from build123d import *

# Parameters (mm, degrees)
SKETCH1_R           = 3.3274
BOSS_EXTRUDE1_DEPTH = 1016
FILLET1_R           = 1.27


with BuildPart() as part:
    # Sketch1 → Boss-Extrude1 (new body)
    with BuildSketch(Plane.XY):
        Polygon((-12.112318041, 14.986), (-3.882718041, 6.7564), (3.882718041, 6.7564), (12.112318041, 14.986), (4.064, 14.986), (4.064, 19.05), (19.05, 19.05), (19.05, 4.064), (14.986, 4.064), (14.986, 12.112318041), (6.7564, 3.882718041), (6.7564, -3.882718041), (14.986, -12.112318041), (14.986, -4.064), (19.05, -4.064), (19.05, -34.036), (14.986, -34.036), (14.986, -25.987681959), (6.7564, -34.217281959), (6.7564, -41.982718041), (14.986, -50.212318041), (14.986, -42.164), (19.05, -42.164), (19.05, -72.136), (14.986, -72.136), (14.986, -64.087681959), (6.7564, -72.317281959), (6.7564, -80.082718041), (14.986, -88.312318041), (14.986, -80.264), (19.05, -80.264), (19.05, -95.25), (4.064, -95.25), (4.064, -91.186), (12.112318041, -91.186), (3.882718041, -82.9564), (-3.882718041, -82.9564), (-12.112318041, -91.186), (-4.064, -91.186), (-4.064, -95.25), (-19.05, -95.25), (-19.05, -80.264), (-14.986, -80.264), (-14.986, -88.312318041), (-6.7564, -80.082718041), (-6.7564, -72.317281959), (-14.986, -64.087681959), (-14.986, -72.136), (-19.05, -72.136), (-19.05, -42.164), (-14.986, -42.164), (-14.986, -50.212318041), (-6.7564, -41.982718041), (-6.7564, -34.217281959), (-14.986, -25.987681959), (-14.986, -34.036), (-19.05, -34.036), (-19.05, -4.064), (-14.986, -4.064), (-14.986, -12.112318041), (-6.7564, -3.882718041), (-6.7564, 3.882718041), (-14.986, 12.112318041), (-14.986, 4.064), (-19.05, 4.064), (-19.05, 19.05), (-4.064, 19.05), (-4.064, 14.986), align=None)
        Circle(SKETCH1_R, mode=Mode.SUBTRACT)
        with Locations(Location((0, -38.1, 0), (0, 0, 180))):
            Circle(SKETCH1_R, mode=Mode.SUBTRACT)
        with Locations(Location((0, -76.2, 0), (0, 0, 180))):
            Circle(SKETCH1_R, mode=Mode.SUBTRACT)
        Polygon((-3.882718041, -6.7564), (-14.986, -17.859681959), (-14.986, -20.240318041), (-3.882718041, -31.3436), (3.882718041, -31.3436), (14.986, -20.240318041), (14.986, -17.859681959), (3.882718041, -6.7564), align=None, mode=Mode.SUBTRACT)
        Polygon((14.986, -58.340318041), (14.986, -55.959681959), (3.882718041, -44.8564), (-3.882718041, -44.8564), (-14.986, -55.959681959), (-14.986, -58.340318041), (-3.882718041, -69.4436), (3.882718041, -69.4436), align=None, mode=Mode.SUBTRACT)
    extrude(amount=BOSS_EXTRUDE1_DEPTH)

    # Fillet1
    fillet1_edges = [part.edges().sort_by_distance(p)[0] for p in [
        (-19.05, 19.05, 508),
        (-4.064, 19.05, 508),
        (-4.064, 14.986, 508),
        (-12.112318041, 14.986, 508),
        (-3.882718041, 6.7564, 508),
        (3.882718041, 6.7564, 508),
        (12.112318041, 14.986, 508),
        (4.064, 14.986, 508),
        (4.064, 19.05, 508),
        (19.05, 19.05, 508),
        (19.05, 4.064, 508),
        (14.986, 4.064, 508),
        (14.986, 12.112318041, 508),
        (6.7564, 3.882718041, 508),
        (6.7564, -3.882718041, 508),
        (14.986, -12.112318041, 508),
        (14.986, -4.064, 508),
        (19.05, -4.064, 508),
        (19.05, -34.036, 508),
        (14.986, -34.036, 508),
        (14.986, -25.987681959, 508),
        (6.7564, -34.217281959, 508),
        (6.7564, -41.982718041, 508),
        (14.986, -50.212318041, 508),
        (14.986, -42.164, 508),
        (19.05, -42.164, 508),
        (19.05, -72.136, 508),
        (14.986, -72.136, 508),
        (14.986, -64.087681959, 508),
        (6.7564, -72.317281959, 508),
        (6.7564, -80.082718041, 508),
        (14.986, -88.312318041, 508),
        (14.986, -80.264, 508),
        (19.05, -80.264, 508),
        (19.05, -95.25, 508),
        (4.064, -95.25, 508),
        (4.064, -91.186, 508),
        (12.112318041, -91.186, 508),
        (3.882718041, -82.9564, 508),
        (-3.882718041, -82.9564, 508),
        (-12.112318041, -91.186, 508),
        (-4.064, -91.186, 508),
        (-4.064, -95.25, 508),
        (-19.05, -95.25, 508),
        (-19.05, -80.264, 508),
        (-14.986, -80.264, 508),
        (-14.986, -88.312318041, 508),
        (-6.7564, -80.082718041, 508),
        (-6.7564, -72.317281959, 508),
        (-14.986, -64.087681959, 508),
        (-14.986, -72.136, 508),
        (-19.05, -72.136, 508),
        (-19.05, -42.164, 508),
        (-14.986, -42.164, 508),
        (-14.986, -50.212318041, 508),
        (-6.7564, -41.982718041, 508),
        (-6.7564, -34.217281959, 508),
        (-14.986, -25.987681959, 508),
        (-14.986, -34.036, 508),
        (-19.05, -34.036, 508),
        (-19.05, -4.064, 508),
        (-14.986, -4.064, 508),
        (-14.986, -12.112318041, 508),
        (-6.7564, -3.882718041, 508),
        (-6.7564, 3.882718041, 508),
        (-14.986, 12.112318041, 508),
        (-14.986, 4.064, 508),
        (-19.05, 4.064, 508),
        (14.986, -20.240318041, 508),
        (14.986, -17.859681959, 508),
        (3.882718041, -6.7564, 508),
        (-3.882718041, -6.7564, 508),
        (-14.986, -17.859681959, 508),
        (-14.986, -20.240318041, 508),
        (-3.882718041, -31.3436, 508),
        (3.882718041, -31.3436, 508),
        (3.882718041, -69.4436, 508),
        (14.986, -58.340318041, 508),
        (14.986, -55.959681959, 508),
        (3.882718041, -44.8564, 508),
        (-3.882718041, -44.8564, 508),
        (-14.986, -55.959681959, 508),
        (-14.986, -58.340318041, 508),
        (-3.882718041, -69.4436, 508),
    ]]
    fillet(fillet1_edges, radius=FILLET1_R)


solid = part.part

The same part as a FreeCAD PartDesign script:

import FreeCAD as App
import Part
import Sketcher

V = App.Vector
Q = App.Units.Quantity


def edges_at(feature, points):
    """Names of the edges that pass closest to the given points."""
    edges = feature.Shape.Edges
    near = lambda p: min(range(len(edges)), key=lambda i: edges[i].distToShape(Part.Vertex(*p))[0])
    return sorted({f"Edge{near(p) + 1}" for p in points})


def add_polygon(sketch, points):
    """Adds a closed chain of lines whose ends are joined by coincident constraints."""
    first, n = sketch.GeometryCount, len(points)
    for a, b in zip(points, points[1:] + points[:1]):
        sketch.addGeometry(Part.LineSegment(App.Vector(*a, 0), App.Vector(*b, 0)), False)
    for i in range(n):
        sketch.addConstraint(Sketcher.Constraint("Coincident", first + i, 2, first + (i + 1) % n, 1))

doc = App.newDocument("Part")
params = doc.addObject("Spreadsheet::Sheet", "Params")
for row, (alias, value) in enumerate([
    ("sketch1_diameter", "0.262 in"),
    ("sketch1_width", "0.59 in"),
    ("sketch1_width2", "0.16 in"),
    ("sketch1_height", "1.18 in"),
    ("pad1_length", "40 in"),
    ("fillet_radius", "0.05 in"),
], start=1):
    params.set(f"A{row}", alias)
    params.set(f"B{row}", "=" + value)
    params.setAlias(f"B{row}", alias)

body = doc.addObject("PartDesign::Body", "Body")

# Sketch on XY plane
sketch1 = body.newObject("Sketcher::SketchObject", "Sketch")
sketch1.AttachmentSupport = (doc.getObject("XY_Plane"), [""])
sketch1.MapMode = "FlatFace"
add_polygon(sketch1, [(-3.882718, 6.7564), (-12.112318, 14.986), (-4.064, 14.986), (-4.064, 19.05), (-19.05, 19.05), (-19.05, 4.064), (-14.986, 4.064), (-14.986, 12.112318), (-6.7564, 3.882718), (-6.7564, -3.882718), (-14.986, -12.112318), (-14.986, -4.064), (-19.05, -4.064), (-19.05, -34.036), (-14.986, -34.036), (-14.986, -25.987682), (-6.7564, -34.217282), (-6.7564, -41.982718), (-14.986, -50.212318), (-14.986, -42.164), (-19.05, -42.164), (-19.05, -72.136), (-14.986, -72.136), (-14.986, -64.087682), (-6.7564, -72.317282), (-6.7564, -80.082718), (-14.986, -88.312318), (-14.986, -80.264), (-19.05, -80.264), (-19.05, -95.25), (-4.064, -95.25), (-4.064, -91.186), (-12.112318, -91.186), (-3.882718, -82.9564), (3.882718, -82.9564), (12.112318, -91.186), (4.064, -91.186), (4.064, -95.25), (19.05, -95.25), (19.05, -80.264), (14.986, -80.264), (14.986, -88.312318), (6.7564, -80.082718), (6.7564, -72.317282), (14.986, -64.087682), (14.986, -72.136), (19.05, -72.136), (19.05, -42.164), (14.986, -42.164), (14.986, -50.212318), (6.7564, -41.982718), (6.7564, -34.217282), (14.986, -25.987682), (14.986, -34.036), (19.05, -34.036), (19.05, -4.064), (14.986, -4.064), (14.986, -12.112318), (6.7564, -3.882718), (6.7564, 3.882718), (14.986, 12.112318), (14.986, 4.064), (19.05, 4.064), (19.05, 19.05), (4.064, 19.05), (4.064, 14.986), (12.112318, 14.986), (3.882718, 6.7564)])  # lines 0-67
sketch1.addGeometry(Part.Circle(V(0, -76.2, 0), V(0, 0, 1), 3.3274), False)  # 68
add_polygon(sketch1, [(14.986, -58.340318), (3.882718, -69.4436), (-3.882718, -69.4436), (-14.986, -58.340318), (-14.986, -55.959682), (-3.882718, -44.8564), (3.882718, -44.8564), (14.986, -55.959682)])  # lines 69-76
sketch1.addGeometry(Part.Circle(V(0, -38.1, 0), V(0, 0, 1), 3.3274), False)  # 77
add_polygon(sketch1, [(-3.882718, -6.7564), (3.882718, -6.7564), (14.986, -17.859682), (14.986, -20.240318), (3.882718, -31.3436), (-3.882718, -31.3436), (-14.986, -20.240318), (-14.986, -17.859682)])  # lines 78-85
sketch1.addGeometry(Part.Circle(V(0, 0, 0), V(0, 0, 1), 3.3274), False)  # 86
sketch1.addConstraint([
    Sketcher.Constraint("Horizontal", 1),
    Sketcher.Constraint("Vertical", 2),
    Sketcher.Constraint("Horizontal", 3),
    Sketcher.Constraint("Vertical", 4),
    Sketcher.Constraint("Horizontal", 5),
    Sketcher.Constraint("Vertical", 6),
    Sketcher.Constraint("Vertical", 8),
    Sketcher.Constraint("Vertical", 10),
    Sketcher.Constraint("Horizontal", 11),
    Sketcher.Constraint("Vertical", 12),
    Sketcher.Constraint("Horizontal", 13),
    Sketcher.Constraint("Vertical", 14),
    Sketcher.Constraint("Vertical", 16),
    Sketcher.Constraint("Vertical", 18),
    Sketcher.Constraint("Horizontal", 19),
    Sketcher.Constraint("Vertical", 20),
    Sketcher.Constraint("Horizontal", 21),
    Sketcher.Constraint("Vertical", 22),
    Sketcher.Constraint("Vertical", 24),
    Sketcher.Constraint("Vertical", 26),
    Sketcher.Constraint("Horizontal", 27),
    Sketcher.Constraint("Vertical", 28),
    Sketcher.Constraint("Horizontal", 29),
    Sketcher.Constraint("Vertical", 30),
    Sketcher.Constraint("Horizontal", 31),
    Sketcher.Constraint("Horizontal", 33),
    Sketcher.Constraint("Horizontal", 35),
    Sketcher.Constraint("Vertical", 36),
    Sketcher.Constraint("Horizontal", 37),
    Sketcher.Constraint("Vertical", 38),
    Sketcher.Constraint("Horizontal", 39),
    Sketcher.Constraint("Vertical", 40),
    Sketcher.Constraint("Vertical", 42),
    Sketcher.Constraint("Vertical", 44),
    Sketcher.Constraint("Horizontal", 45),
    Sketcher.Constraint("Vertical", 46),
    Sketcher.Constraint("Horizontal", 47),
    Sketcher.Constraint("Vertical", 48),
    Sketcher.Constraint("Vertical", 50),
    Sketcher.Constraint("Vertical", 52),
    Sketcher.Constraint("Horizontal", 53),
    Sketcher.Constraint("Vertical", 54),
    Sketcher.Constraint("Horizontal", 55),
    Sketcher.Constraint("Vertical", 56),
    Sketcher.Constraint("Vertical", 58),
    Sketcher.Constraint("Vertical", 60),
    Sketcher.Constraint("Horizontal", 61),
    Sketcher.Constraint("Vertical", 62),
    Sketcher.Constraint("Horizontal", 63),
    Sketcher.Constraint("Vertical", 64),
    Sketcher.Constraint("Horizontal", 65),
    Sketcher.Constraint("Horizontal", 67),
    Sketcher.Constraint("Horizontal", 70),
    Sketcher.Constraint("Vertical", 72),
    Sketcher.Constraint("Horizontal", 74),
    Sketcher.Constraint("Vertical", 76),
    Sketcher.Constraint("Horizontal", 78),
    Sketcher.Constraint("Vertical", 80),
    Sketcher.Constraint("Horizontal", 82),
    Sketcher.Constraint("Vertical", 84),
    Sketcher.Constraint("Coincident", 86, 3, -1, 1),
    Sketcher.Constraint("Equal", 68, 77),
    Sketcher.Constraint("Equal", 77, 86),
    Sketcher.Constraint("Symmetric", 4, 2, 54, 2, -1, 1),
    Sketcher.Constraint("Symmetric", 6, 2, 56, 2, -1, 1),
    Sketcher.Constraint("Symmetric", 7, 2, 57, 2, -1, 1),
    Sketcher.Constraint("Symmetric", 9, 2, 59, 2, -1, 1),
    Sketcher.Constraint("Symmetric", 11, 2, 61, 2, -1, 1),
    Sketcher.Constraint("Symmetric", 67, 2, 78, 2, -1, 1),
    Sketcher.Constraint("Symmetric", 31, 2, 34, 2, -2),
    Sketcher.Constraint("Symmetric", 29, 2, 36, 2, -2),
    Sketcher.Constraint("Symmetric", 27, 2, 38, 2, -2),
    Sketcher.Constraint("Symmetric", 25, 2, 40, 2, -2),
    Sketcher.Constraint("Symmetric", 24, 2, 41, 2, -2),
    Sketcher.Constraint("Symmetric", 22, 2, 43, 2, -2),
    Sketcher.Constraint("Symmetric", 20, 2, 45, 2, -2),
    Sketcher.Constraint("Symmetric", 18, 2, 47, 2, -2),
    Sketcher.Constraint("Symmetric", 16, 2, 49, 2, -2),
    Sketcher.Constraint("Symmetric", 14, 2, 51, 2, -2),
    Sketcher.Constraint("Symmetric", 12, 2, 53, 2, -2),
    Sketcher.Constraint("Symmetric", 10, 2, 55, 2, -2),
    Sketcher.Constraint("Symmetric", 2, 2, 63, 2, -2),
    Sketcher.Constraint("Symmetric", 0, 2, 65, 2, -2),
    Sketcher.Constraint("Symmetric", 72, 2, 75, 2, -2),
    Sketcher.Constraint("Symmetric", 80, 2, 83, 2, -2),
    Sketcher.Constraint("PointOnObject", 68, 3, -2),
    Sketcher.Constraint("PointOnObject", 77, 3, -2),
    Sketcher.Constraint("Parallel", 0, 7),
    Sketcher.Constraint("Perpendicular", 7, 9),
    Sketcher.Constraint("Perpendicular", 9, 15),
    Sketcher.Constraint("Perpendicular", 15, 17),
    Sketcher.Constraint("Perpendicular", 17, 23),
    Sketcher.Constraint("Perpendicular", 23, 25),
    Sketcher.Constraint("Parallel", 25, 32),
    Sketcher.Constraint("Perpendicular", 32, 34),
    Sketcher.Constraint("Parallel", 34, 41),
    Sketcher.Constraint("Perpendicular", 41, 43),
    Sketcher.Constraint("Perpendicular", 43, 49),
    Sketcher.Constraint("Perpendicular", 49, 51),
    Sketcher.Constraint("Perpendicular", 57, 59),
    Sketcher.Constraint("Parallel", 59, 66),
    Sketcher.Constraint("Parallel", 66, 69),
    Sketcher.Constraint("Perpendicular", 69, 71),
    Sketcher.Constraint("Perpendicular", 71, 73),
    Sketcher.Constraint("Perpendicular", 73, 75),
    Sketcher.Constraint("Parallel", 75, 79),
    Sketcher.Constraint("Perpendicular", 79, 81),
    Sketcher.Constraint("Perpendicular", 81, 83),
    Sketcher.Constraint("Perpendicular", 83, 85),
    Sketcher.Constraint("Horizontal", 9, 2, 56, 2),
    Sketcher.Constraint("Horizontal", 71, 2, 76, 2),
    Sketcher.Constraint("Horizontal", 79, 2, 84, 2),
    Sketcher.Constraint("Vertical", 10, 2, 13, 2),
    Sketcher.Constraint("Vertical", 8, 2, 15, 2),
    Sketcher.Constraint("Vertical", 14, 2, 17, 2),
    Sketcher.Constraint("Vertical", 12, 2, 19, 2),
    Sketcher.Constraint("Vertical", 18, 2, 21, 2),
    Sketcher.Constraint("Vertical", 16, 2, 23, 2),
    Sketcher.Constraint("Vertical", 22, 2, 25, 2),
    Sketcher.Constraint("Vertical", 20, 2, 27, 2),
    Sketcher.Constraint("Vertical", 2, 2, 29, 2),
    Sketcher.Constraint("Vertical", 0, 2, 31, 2),
    Sketcher.Constraint("Vertical", 33, 2, 66, 2),
    Sketcher.Constraint("Vertical", 66, 2, 69, 2),
    Sketcher.Constraint("Vertical", 26, 2, 71, 2),
    Sketcher.Constraint("Vertical", 70, 2, 73, 2),
    Sketcher.Constraint("Vertical", 76, 2, 79, 2),
    Sketcher.Constraint("Vertical", 78, 2, 81, 2),
    Sketcher.Constraint("Equal", 61, 2),
    Sketcher.Constraint("Equal", 63, 4),
    Sketcher.Constraint("Equal", 65, 6),
    Sketcher.Constraint("Equal", 82, 8),
    Sketcher.Constraint("Equal", 10, 14),
    Sketcher.Constraint("Equal", 8, 16),
    Sketcher.Constraint("Equal", 14, 18),
    Sketcher.Constraint("Equal", 12, 20),
    Sketcher.Constraint("Equal", 18, 22),
    Sketcher.Constraint("Equal", 16, 24),
    Sketcher.Constraint("Equal", 22, 26),
    Sketcher.Constraint("Equal", 4, 28),
    Sketcher.Constraint("Equal", 2, 30),
    Sketcher.Constraint("Equal", 76, 80),
    Sketcher.Constraint("Equal", 0, 7),
    Sketcher.Constraint("Diameter", 68, Q("0.262 in")),
    Sketcher.Constraint("DistanceY", 68, 3, -1, 1, Q("3 in")),
    Sketcher.Constraint("DistanceX", 3, 2, 3, 1, Q("0.59 in")),
    Sketcher.Constraint("DistanceX", 5, 1, 5, 2, Q("0.16 in")),
    Sketcher.Constraint("DistanceY", 12, 2, 12, 1, Q("1.18 in")),
    Sketcher.Constraint("DistanceY", 77, 3, -1, 1, Q("1.5 in")),
    Sketcher.Constraint("DistanceY", -1, 1, 0, 2, Q("0.59 in")),
    Sketcher.Constraint("DistanceX", 7, 2, -1, 1, Q("0.266 in")),
    Sketcher.Constraint("DistanceY", 69, 2, -1, 1, Q("2.734 in")),
    Sketcher.Constraint("DistanceY", 73, 2, -1, 1, Q("1.766 in")),
    Sketcher.Constraint("DistanceX", 1, 1, 1, 2, 8.048318),
])
sketch1.setExpression("Constraints[227]", "Params.sketch1_diameter")
sketch1.setExpression("Constraints[229]", "Params.sketch1_width")
sketch1.setExpression("Constraints[230]", "Params.sketch1_width2")
sketch1.setExpression("Constraints[231]", "Params.sketch1_height")
pad1 = body.newObject("PartDesign::Pad", "Pad")
pad1.Profile = sketch1
pad1.setExpression("Length", "Params.pad1_length")
doc.recompute()

fillet = body.newObject("PartDesign::Fillet", "Fillet")
fillet.Base = (pad1, edges_at(pad1, [
    (-19.05, 19.05, 508),
    (-4.064, 19.05, 508),
    (-4.064, 14.986, 508),
    (-12.112, 14.986, 508),
    (-3.883, 6.756, 508),
    (3.883, 6.756, 508),
    (12.112, 14.986, 508),
    (4.064, 14.986, 508),
    (4.064, 19.05, 508),
    (19.05, 19.05, 508),
    (19.05, 4.064, 508),
    (14.986, 4.064, 508),
    (14.986, 12.112, 508),
    (6.756, 3.883, 508),
    (6.756, -3.883, 508),
    (14.986, -12.112, 508),
    (14.986, -4.064, 508),
    (19.05, -4.064, 508),
    (19.05, -34.036, 508),
    (14.986, -34.036, 508),
    (14.986, -25.988, 508),
    (6.756, -34.217, 508),
    (6.756, -41.983, 508),
    (14.986, -50.212, 508),
    (14.986, -42.164, 508),
    (19.05, -42.164, 508),
    (19.05, -72.136, 508),
    (14.986, -72.136, 508),
    (14.986, -64.088, 508),
    (6.756, -72.317, 508),
    (6.756, -80.083, 508),
    (14.986, -88.312, 508),
    (14.986, -80.264, 508),
    (19.05, -80.264, 508),
    (19.05, -95.25, 508),
    (4.064, -95.25, 508),
    (4.064, -91.186, 508),
    (12.112, -91.186, 508),
    (3.883, -82.956, 508),
    (-3.883, -82.956, 508),
    (-12.112, -91.186, 508),
    (-4.064, -91.186, 508),
    (-4.064, -95.25, 508),
    (-19.05, -95.25, 508),
    (-19.05, -80.264, 508),
    (-14.986, -80.264, 508),
    (-14.986, -88.312, 508),
    (-6.756, -80.083, 508),
    (-6.756, -72.317, 508),
    (-14.986, -64.088, 508),
    (-14.986, -72.136, 508),
    (-19.05, -72.136, 508),
    (-19.05, -42.164, 508),
    (-14.986, -42.164, 508),
    (-14.986, -50.212, 508),
    (-6.756, -41.983, 508),
    (-6.756, -34.217, 508),
    (-14.986, -25.988, 508),
    (-14.986, -34.036, 508),
    (-19.05, -34.036, 508),
    (-19.05, -4.064, 508),
    (-14.986, -4.064, 508),
    (-14.986, -12.112, 508),
    (-6.756, -3.883, 508),
    (-6.756, 3.883, 508),
    (-14.986, 12.112, 508),
    (-14.986, 4.064, 508),
    (-19.05, 4.064, 508),
    (14.986, -20.24, 508),
    (14.986, -17.86, 508),
    (3.883, -6.756, 508),
    (-3.883, -6.756, 508),
    (-14.986, -17.86, 508),
    (-14.986, -20.24, 508),
    (-3.883, -31.344, 508),
    (3.883, -31.344, 508),
    (3.883, -69.444, 508),
    (14.986, -58.34, 508),
    (14.986, -55.96, 508),
    (3.883, -44.856, 508),
    (-3.883, -44.856, 508),
    (-14.986, -55.96, 508),
    (-14.986, -58.34, 508),
    (-3.883, -69.444, 508),
]))
fillet.setExpression("Radius", "Params.fillet_radius")

doc.recompute()
